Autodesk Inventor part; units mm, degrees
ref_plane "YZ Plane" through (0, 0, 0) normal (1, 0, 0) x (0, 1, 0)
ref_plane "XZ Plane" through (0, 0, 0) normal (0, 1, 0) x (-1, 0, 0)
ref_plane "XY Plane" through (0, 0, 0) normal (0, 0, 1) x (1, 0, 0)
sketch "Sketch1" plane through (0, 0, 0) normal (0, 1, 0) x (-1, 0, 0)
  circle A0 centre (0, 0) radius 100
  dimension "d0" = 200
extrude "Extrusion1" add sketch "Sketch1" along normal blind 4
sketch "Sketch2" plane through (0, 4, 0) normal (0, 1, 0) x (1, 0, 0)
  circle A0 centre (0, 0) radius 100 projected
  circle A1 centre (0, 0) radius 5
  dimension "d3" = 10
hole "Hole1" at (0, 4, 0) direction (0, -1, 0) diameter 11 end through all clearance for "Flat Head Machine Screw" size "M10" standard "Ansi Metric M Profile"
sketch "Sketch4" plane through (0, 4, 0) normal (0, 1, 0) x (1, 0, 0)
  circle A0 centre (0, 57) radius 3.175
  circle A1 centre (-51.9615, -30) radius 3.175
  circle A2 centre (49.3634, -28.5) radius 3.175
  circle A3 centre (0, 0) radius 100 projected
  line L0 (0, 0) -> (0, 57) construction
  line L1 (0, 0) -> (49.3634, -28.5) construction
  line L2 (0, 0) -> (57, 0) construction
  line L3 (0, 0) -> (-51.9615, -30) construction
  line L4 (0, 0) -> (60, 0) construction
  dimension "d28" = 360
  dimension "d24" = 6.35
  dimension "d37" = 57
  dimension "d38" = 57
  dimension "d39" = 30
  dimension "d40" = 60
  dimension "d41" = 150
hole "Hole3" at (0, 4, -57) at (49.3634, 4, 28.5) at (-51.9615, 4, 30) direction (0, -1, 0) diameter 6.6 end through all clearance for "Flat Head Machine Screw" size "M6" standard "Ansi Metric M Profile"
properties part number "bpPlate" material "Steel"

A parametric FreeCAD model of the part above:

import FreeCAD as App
import Part
import Sketcher

doc = App.newDocument("Part")
params = doc.addObject("Spreadsheet::Sheet", "Params")
for row, (alias, value) in enumerate([
    ("sketch1_diameter", "200 mm"),
    ("pad1_length", "4 mm"),
    ("sketch2_diameter", "11 mm"),
    ("hole_diameter", "11 mm"),
    ("sketch3_diameter", "6.6 mm"),
    ("hole2_diameter", "6.6 mm"),
], start=1):
    params.set(f"A{row}", alias)
    params.set(f"B{row}", "=" + value)
    params.setAlias(f"B{row}", alias)

body = doc.addObject("PartDesign::Body", "Body")

# Sketch on XZ plane
sketch1 = body.newObject("Sketcher::SketchObject", "Sketch")
sketch1.AttachmentSupport = (doc.getObject("XZ_Plane"), [""])
sketch1.MapMode = "FlatFace"
sketch1.addGeometry(Part.Circle(App.Vector(0, 0, 0), App.Vector(0, 0, 1), 100), False)
sketch1.addConstraint(Sketcher.Constraint("Coincident", 0, 3, -1, 1))
sketch1.addConstraint(Sketcher.Constraint("Diameter", 0, 200.0))
sketch1.setExpression("Constraints[1]", "Params.sketch1_diameter")
pad1 = body.newObject("PartDesign::Pad", "Pad")
pad1.Profile = sketch1
pad1.setExpression("Length", "Params.pad1_length")
pad1.Reversed = True

# Sketch on XZ plane
sketch2 = body.newObject("Sketcher::SketchObject", "Sketch001")
sketch2.AttachmentSupport = (doc.getObject("XZ_Plane"), [""])
sketch2.MapMode = "FlatFace"
sketch2.AttachmentOffset = App.Placement(App.Vector(0, 0, -4), App.Rotation())
sketch2.addGeometry(Part.Circle(App.Vector(0, 0, 0), App.Vector(0, 0, 1), 6), False)
sketch2.addConstraint(Sketcher.Constraint("Coincident", 0, 3, -1, 1))
sketch2.addConstraint(Sketcher.Constraint("Diameter", 0, 11.0))
sketch2.setExpression("Constraints[1]", "Params.sketch2_diameter")
doc.recompute()
hole = body.newObject("PartDesign::Hole", "Hole")
hole.Profile = sketch2
hole.ThreadType = "None"
hole.setExpression("Diameter", "Params.hole_diameter")
hole.DepthType = "ThroughAll"
hole.Reversed = True

# Sketch on XZ plane
sketch3 = body.newObject("Sketcher::SketchObject", "Sketch002")
sketch3.AttachmentSupport = (doc.getObject("XZ_Plane"), [""])
sketch3.MapMode = "FlatFace"
sketch3.AttachmentOffset = App.Placement(App.Vector(0, 0, -4), App.Rotation())
sketch3.addGeometry(Part.Circle(App.Vector(0, -57, 0), App.Vector(0, 0, 1), 3.3), False)
sketch3.addGeometry(Part.Circle(App.Vector(49.4, 28.5, 0), App.Vector(0, 0, 1), 3.3), False)
sketch3.addGeometry(Part.Circle(App.Vector(-52, 30, 0), App.Vector(0, 0, 1), 3.3), False)
sketch3.addConstraint(Sketcher.Constraint("Equal", 0, 1))
sketch3.addConstraint(Sketcher.Constraint("Equal", 1, 2))
sketch3.addConstraint(Sketcher.Constraint("PointOnObject", 0, 3, -2))
sketch3.addConstraint(Sketcher.Constraint("Diameter", 0, 6.6))
sketch3.addConstraint(Sketcher.Constraint("DistanceY", 0, 3, -1, 1, 57.0))
sketch3.addConstraint(Sketcher.Constraint("DistanceY", -1, 1, 2, 3, 30.0))
sketch3.addConstraint(Sketcher.Constraint("DistanceY", -1, 1, 1, 3, 28.5))
sketch3.addConstraint(Sketcher.Constraint("DistanceX", 2, 3, 1, 3, 101.325))
sketch3.addConstraint(Sketcher.Constraint("DistanceX", -1, 1, 1, 3, 49.3634))
sketch3.setExpression("Constraints[3]", "Params.sketch3_diameter")
doc.recompute()
hole2 = body.newObject("PartDesign::Hole", "Hole001")
hole2.Profile = sketch3
hole2.ThreadType = "None"
hole2.setExpression("Diameter", "Params.hole2_diameter")
hole2.DepthType = "ThroughAll"
hole2.Reversed = True

doc.recompute()
